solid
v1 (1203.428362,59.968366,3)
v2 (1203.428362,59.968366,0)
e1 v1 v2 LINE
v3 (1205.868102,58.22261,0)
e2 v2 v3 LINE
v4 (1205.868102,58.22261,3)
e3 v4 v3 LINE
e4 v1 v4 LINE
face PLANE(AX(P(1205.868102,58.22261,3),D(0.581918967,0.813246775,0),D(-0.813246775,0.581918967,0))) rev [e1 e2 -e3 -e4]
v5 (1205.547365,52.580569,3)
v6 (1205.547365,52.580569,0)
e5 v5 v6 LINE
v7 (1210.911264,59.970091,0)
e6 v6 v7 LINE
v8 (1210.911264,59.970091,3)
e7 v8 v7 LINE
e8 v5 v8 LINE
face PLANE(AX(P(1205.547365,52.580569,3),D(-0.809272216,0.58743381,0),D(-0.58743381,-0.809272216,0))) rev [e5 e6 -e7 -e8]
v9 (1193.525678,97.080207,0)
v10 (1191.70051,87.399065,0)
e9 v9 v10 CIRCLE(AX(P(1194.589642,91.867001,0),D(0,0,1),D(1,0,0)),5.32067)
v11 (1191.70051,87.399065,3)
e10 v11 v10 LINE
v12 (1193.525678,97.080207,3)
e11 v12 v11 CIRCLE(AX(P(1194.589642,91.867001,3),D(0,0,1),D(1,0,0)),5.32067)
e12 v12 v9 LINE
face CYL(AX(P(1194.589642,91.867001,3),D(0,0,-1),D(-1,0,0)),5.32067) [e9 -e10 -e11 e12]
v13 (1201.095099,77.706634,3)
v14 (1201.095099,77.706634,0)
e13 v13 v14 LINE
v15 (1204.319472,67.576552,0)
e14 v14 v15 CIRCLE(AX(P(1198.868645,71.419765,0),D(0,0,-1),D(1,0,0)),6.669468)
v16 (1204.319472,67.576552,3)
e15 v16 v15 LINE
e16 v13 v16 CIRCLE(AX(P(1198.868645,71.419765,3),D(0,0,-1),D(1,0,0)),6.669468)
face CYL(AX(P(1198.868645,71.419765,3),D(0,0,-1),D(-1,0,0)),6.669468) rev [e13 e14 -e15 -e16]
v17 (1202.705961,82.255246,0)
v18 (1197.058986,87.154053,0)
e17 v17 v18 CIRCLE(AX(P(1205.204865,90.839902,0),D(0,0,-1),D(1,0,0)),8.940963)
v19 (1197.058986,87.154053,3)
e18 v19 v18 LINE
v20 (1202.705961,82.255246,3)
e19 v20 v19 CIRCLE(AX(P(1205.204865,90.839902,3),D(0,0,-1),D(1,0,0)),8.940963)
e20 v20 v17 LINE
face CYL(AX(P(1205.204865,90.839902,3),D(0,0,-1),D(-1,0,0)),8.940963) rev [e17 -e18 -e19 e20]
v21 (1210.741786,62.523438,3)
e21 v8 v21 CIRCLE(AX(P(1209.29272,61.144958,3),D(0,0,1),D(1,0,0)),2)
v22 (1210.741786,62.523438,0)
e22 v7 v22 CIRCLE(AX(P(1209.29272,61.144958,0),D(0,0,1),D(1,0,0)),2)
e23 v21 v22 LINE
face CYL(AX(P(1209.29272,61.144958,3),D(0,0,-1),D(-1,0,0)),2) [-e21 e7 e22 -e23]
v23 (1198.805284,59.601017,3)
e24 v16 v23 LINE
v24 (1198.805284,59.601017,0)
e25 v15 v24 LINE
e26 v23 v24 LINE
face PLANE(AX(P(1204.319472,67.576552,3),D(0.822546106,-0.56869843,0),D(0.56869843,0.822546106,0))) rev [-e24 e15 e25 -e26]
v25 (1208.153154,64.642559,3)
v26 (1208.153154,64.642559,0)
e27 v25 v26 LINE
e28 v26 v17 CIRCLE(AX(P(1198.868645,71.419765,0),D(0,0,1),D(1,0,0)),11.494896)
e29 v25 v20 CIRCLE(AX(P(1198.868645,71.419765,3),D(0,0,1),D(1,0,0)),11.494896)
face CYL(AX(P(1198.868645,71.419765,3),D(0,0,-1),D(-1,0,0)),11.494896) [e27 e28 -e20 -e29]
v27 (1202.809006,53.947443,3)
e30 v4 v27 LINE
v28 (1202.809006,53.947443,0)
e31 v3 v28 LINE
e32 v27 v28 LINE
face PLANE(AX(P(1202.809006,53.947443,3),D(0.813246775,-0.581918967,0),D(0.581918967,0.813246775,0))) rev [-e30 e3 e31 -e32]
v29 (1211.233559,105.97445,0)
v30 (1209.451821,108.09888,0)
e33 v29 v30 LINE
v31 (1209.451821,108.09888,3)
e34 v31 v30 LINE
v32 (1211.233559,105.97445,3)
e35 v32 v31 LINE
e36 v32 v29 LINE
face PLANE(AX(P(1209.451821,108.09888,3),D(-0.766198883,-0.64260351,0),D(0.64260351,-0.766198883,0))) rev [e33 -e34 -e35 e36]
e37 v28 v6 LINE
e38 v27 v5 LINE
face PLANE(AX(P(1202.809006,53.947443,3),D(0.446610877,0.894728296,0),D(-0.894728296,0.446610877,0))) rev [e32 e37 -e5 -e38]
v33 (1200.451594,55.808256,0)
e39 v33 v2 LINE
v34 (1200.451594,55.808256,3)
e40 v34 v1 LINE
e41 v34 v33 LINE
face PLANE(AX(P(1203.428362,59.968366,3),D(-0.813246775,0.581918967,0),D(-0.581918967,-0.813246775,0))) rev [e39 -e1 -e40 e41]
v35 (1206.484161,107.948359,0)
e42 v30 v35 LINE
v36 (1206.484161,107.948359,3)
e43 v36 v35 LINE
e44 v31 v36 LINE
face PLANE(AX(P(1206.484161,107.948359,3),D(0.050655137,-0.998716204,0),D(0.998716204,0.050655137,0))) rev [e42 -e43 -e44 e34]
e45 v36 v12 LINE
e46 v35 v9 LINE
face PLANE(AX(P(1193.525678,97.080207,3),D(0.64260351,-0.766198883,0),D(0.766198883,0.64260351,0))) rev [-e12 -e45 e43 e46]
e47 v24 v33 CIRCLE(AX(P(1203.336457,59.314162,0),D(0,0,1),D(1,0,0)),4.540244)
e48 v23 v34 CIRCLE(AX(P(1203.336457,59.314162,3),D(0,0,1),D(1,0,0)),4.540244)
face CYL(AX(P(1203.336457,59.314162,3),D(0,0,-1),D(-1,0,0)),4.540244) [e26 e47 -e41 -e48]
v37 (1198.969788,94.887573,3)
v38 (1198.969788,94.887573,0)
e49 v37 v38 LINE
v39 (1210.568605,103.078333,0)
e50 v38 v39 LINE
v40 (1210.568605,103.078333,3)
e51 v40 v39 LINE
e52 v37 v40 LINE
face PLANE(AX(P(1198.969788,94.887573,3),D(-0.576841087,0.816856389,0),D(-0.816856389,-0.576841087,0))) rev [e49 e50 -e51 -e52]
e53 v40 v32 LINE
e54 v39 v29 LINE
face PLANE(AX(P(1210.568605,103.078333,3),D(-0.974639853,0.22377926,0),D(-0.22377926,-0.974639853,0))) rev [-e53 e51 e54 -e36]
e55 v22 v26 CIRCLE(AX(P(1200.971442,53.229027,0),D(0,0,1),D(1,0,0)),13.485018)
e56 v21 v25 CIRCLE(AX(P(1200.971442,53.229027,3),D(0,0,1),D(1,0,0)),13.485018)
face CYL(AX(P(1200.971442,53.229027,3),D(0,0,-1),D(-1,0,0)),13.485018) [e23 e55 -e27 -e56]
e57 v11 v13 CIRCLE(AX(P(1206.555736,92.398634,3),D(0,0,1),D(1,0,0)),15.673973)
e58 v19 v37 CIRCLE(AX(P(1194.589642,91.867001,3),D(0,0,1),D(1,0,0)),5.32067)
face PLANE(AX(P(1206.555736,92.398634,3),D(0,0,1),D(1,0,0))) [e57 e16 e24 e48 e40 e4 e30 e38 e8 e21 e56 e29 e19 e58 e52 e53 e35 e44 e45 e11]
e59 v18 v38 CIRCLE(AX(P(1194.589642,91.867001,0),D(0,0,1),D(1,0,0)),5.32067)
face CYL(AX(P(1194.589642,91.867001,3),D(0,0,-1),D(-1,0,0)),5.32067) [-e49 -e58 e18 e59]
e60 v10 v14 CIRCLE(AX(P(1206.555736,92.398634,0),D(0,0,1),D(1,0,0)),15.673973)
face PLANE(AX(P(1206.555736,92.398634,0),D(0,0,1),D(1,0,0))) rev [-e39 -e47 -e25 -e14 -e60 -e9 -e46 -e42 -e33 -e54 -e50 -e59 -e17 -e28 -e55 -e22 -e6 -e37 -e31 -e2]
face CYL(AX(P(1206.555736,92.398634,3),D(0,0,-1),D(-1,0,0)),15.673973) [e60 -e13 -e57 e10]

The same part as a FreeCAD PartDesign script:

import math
import FreeCAD as App
import Part
import Sketcher

V = App.Vector
Q = App.Units.Quantity

doc = App.newDocument("Part")
body = doc.addObject("PartDesign::Body", "Body")

# Sketch on XY plane
sketch1 = doc.addObject("Sketcher::SketchObject", "Sketch")
body.addObject(sketch1)
sketch1.AttachmentSupport = (doc.XY_Plane, [""])
sketch1.MapMode = "FlatFace"
sketch1.addGeometry([
    Part.LineSegment(V(1211.233559, 105.97445, 0), V(1209.451821, 108.09888, 0)),  # 0
    Part.LineSegment(V(1209.451821, 108.09888, 0), V(1206.484161, 107.948359, 0)),  # 1
    Part.LineSegment(V(1206.484161, 107.948359, 0), V(1193.525678, 97.080207, 0)),  # 2
    Part.ArcOfCircle(Part.Circle(V(1194.589642, 91.867001, 0), V(0, 0, 1), 5.32067), math.radians(101.535085), math.radians(237.111806)),  # 3
    Part.ArcOfCircle(Part.Circle(V(1206.555736, 92.398634, 0), V(0, 0, 1), 15.673973), math.radians(-161.399192), math.radians(-110.388802)),  # 4
    Part.ArcOfCircle(Part.Circle(V(1198.868645, 71.419765, 0), V(0, 0, 1), 6.669468), math.radians(-35.18651), math.radians(70.498727)),  # 5
    Part.LineSegment(V(1204.319472, 67.576552, 0), V(1198.805284, 59.601017, 0)),  # 6
    Part.ArcOfCircle(Part.Circle(V(1203.336457, 59.314162, 0), V(0, 0, 1), 4.540244), math.radians(176.377608), math.radians(230.550469)),  # 7
    Part.LineSegment(V(1200.451594, 55.808256, 0), V(1203.428362, 59.968366, 0)),  # 8
    Part.LineSegment(V(1203.428362, 59.968366, 0), V(1205.868102, 58.22261, 0)),  # 9
    Part.LineSegment(V(1205.868102, 58.22261, 0), V(1202.809006, 53.947443, 0)),  # 10
    Part.LineSegment(V(1202.809006, 53.947443, 0), V(1205.547365, 52.580569, 0)),  # 11
    Part.LineSegment(V(1205.547365, 52.580569, 0), V(1210.911264, 59.970091, 0)),  # 12
    Part.ArcOfCircle(Part.Circle(V(1209.29272, 61.144958, 0), V(0, 0, 1), 2), math.radians(-35.975114), math.radians(43.569962)),  # 13
    Part.ArcOfCircle(Part.Circle(V(1200.971442, 53.229027, 0), V(0, 0, 1), 13.485018), math.radians(43.569962), math.radians(57.820754)),  # 14
    Part.ArcOfCircle(Part.Circle(V(1198.868645, 71.419765, 0), V(0, 0, 1), 11.494896), math.radians(-36.127489), math.radians(70.498727)),  # 15
    Part.ArcOfCircle(Part.Circle(V(1205.204865, 90.839901, 0), V(0, 0, 1), 8.940963), math.radians(-155.654194), math.radians(-106.229733)),  # 16
    Part.ArcOfCircle(Part.Circle(V(1194.589642, 91.867001, 0), V(0, 0, 1), 5.32067), math.radians(-62.347755), math.radians(34.590358)),  # 17
    Part.LineSegment(V(1198.969788, 94.887573, 0), V(1210.568605, 103.078333, 0)),  # 18
    Part.LineSegment(V(1210.568605, 103.078333, 0), V(1211.233559, 105.97445, 0)),  # 19
], False)
sketch1.addConstraint([
    Sketcher.Constraint("Coincident", 0, 2, 1, 1),
    Sketcher.Constraint("Coincident", 1, 2, 2, 1),
    Sketcher.Constraint("Coincident", 2, 2, 3, 1),
    Sketcher.Constraint("Coincident", 3, 2, 4, 1),
    Sketcher.Constraint("Coincident", 4, 2, 5, 2),
    Sketcher.Constraint("Coincident", 5, 1, 6, 1),
    Sketcher.Constraint("Coincident", 6, 2, 7, 1),
    Sketcher.Constraint("Coincident", 7, 2, 8, 1),
    Sketcher.Constraint("Coincident", 8, 2, 9, 1),
    Sketcher.Constraint("Coincident", 9, 2, 10, 1),
    Sketcher.Constraint("Coincident", 10, 2, 11, 1),
    Sketcher.Constraint("Coincident", 11, 2, 12, 1),
    Sketcher.Constraint("Tangent", 12, 2, 13, 1),
    Sketcher.Constraint("Tangent", 13, 2, 14, 1),
    Sketcher.Constraint("Coincident", 14, 2, 15, 1),
    Sketcher.Constraint("Coincident", 15, 2, 16, 2),
    Sketcher.Constraint("Coincident", 16, 1, 17, 1),
    Sketcher.Constraint("Coincident", 17, 2, 18, 1),
    Sketcher.Constraint("Coincident", 18, 2, 19, 1),
    Sketcher.Constraint("Coincident", 19, 2, 0, 1),
    Sketcher.Constraint("Coincident", 15, 3, 5, 3),
    Sketcher.Constraint("Coincident", 17, 3, 3, 3),
    Sketcher.Constraint("Equal", 3, 17),
    Sketcher.Constraint("Perpendicular", 0, 2),
    Sketcher.Constraint("Perpendicular", 8, 9),
    Sketcher.Constraint("Perpendicular", 9, 10),
    Sketcher.Constraint("Equal", 1, 19),
    Sketcher.Constraint("Radius", 13, Q("2 mm")),
    Sketcher.Constraint("Distance", 9, Q("3 mm")),
    Sketcher.Constraint("Radius", 3, Q("5.32067 mm")),
    Sketcher.Constraint("Radius", 5, Q("6.669468 mm")),
    Sketcher.Constraint("DistanceY", -1, 1, 3, 3, Q("91.867001 mm")),
    Sketcher.Constraint("Radius", 4, Q("15.673973 mm")),
    Sketcher.Constraint("Radius", 7, Q("4.540244 mm")),
    Sketcher.Constraint("Radius", 14, Q("13.485018 mm")),
    Sketcher.Constraint("Radius", 15, Q("11.494896 mm")),
    Sketcher.Constraint("Radius", 16, Q("8.940963 mm")),
    Sketcher.Constraint("DistanceY", -1, 1, 16, 3, Q("90.839901 mm")),
    Sketcher.Constraint("DistanceX", -1, 1, 4, 2, Q("1201.095099 mm")),
    Sketcher.Constraint("DistanceX", 3, 3, 14, 3, Q("6.3818 mm")),
    Sketcher.Constraint("DistanceX", 11, 2, 12, 2, Q("5.363899 mm")),
    Sketcher.Constraint("DistanceY", 13, 3, 14, 2, Q("3.497601 mm")),
    Sketcher.Constraint("DistanceX", 16, 1, 17, 2, Q("1.910802 mm")),
    Sketcher.Constraint("DistanceY", 4, 3, 18, 2, Q("10.679699 mm")),
    Sketcher.Constraint("DistanceX", 1, 2, 19, 2, Q("4.749398 mm")),
    Sketcher.Constraint("Distance", 2, Q("16.912688 mm")),
    Sketcher.Constraint("Distance", 10, Q("5.256912 mm")),
    Sketcher.Constraint("Distance", 11, Q("3.060548 mm")),
    Sketcher.Constraint("Distance", 12, Q("9.13107 mm")),
    Sketcher.Constraint("DistanceX", -1, 1, 3, 3, Q("1194.589642 mm")),
    Sketcher.Constraint("DistanceX", -1, 1, 13, 3, Q("1209.29272 mm")),
    Sketcher.Constraint("DistanceY", -1, 1, 13, 3, Q("61.144958 mm")),
    Sketcher.Constraint("DistanceX", -1, 1, 0, 2, Q("1209.451821 mm")),
    Sketcher.Constraint("DistanceY", -1, 1, 0, 2, Q("108.09888 mm")),
    Sketcher.Constraint("DistanceX", -1, 1, 1, 2, Q("1206.484161 mm")),
    Sketcher.Constraint("DistanceY", -1, 1, 1, 2, Q("107.948359 mm")),
    Sketcher.Constraint("DistanceX", -1, 1, 3, 2, Q("1191.70051 mm")),
    Sketcher.Constraint("DistanceX", -1, 1, 5, 1, Q("1204.319472 mm")),
    Sketcher.Constraint("DistanceY", -1, 1, 9, 2, Q("58.22261 mm")),
    Sketcher.Constraint("DistanceX", -1, 1, 15, 2, Q("1202.705961 mm")),
    Sketcher.Constraint("DistanceX", 5, 3, 4, 3, Q("7.687092 mm")),
    Sketcher.Constraint("DistanceX", 7, 3, 4, 3, Q("3.219279 mm")),
    Sketcher.Constraint("DistanceY", 7, 3, 4, 3, Q("33.084472 mm")),
    Sketcher.Constraint("DistanceX", 6, 2, 14, 3, Q("2.166158 mm")),
    Sketcher.Constraint("DistanceX", 7, 2, 14, 3, Q("0.519848 mm")),
])
pad1 = doc.addObject("PartDesign::Pad", "Pad")
body.addObject(pad1)
pad1.Profile = sketch1
pad1.Length = 3

doc.recompute()
